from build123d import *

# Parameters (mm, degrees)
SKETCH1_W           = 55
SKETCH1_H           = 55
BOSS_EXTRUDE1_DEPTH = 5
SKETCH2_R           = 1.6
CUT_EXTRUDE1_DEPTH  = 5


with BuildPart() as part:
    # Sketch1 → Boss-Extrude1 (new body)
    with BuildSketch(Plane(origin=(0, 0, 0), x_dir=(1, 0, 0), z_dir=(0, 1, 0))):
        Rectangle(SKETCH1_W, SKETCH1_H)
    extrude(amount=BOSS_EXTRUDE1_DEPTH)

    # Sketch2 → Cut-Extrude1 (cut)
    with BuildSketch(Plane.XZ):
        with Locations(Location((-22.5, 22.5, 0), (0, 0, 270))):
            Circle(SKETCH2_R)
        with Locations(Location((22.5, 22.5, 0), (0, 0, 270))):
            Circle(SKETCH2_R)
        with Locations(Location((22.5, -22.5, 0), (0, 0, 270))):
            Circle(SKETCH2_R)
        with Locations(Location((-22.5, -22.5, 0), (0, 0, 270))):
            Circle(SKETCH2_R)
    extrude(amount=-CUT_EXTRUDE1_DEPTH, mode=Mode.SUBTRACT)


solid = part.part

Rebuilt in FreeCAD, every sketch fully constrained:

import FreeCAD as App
import Part
import Sketcher
from FreeCAD import Vector

doc = App.newDocument("Part")
params = doc.addObject("Spreadsheet::Sheet", "Params")
for row, (alias, value) in enumerate([
    ("sketch1_width", "55 mm"),
    ("pad1_length", "5 mm"),
    ("sketch2_diameter", "3.2 mm"),
    ("pocket1_length", "5 mm"),
], start=1):
    params.set(f"A{row}", alias)
    params.set(f"B{row}", "=" + value)
    params.setAlias(f"B{row}", alias)

body = doc.addObject("PartDesign::Body", "Body")

sketch1 = doc.addObject("Sketcher::SketchObject", "Sketch")
body.addObject(sketch1)
sketch1.AttachmentSupport = (doc.XZ_Plane, [""])
sketch1.MapMode = "FlatFace"
sketch1.addGeometry([
    Part.LineSegment(Vector(-27.5, -27.5, 0), Vector(-27.5, 27.5, 0)),
    Part.LineSegment(Vector(-27.5, 27.5, 0), Vector(27.5, 27.5, 0)),
    Part.LineSegment(Vector(27.5, 27.5, 0), Vector(27.5, -27.5, 0)),
    Part.LineSegment(Vector(27.5, -27.5, 0), Vector(-27.5, -27.5, 0)),
], False)
sketch1.addConstraint([
    Sketcher.Constraint("Coincident", 0, 2, 1, 1),
    Sketcher.Constraint("Coincident", 1, 2, 2, 1),
    Sketcher.Constraint("Coincident", 2, 2, 3, 1),
    Sketcher.Constraint("Coincident", 3, 2, 0, 1),
    Sketcher.Constraint("Vertical", 0),
    Sketcher.Constraint("Horizontal", 1),
    Sketcher.Constraint("Vertical", 2),
    Sketcher.Constraint("Horizontal", 3),
    Sketcher.Constraint("Symmetric", 0, 2, 2, 2, -1, 1),
    Sketcher.Constraint("Equal", 3, 0),
    Sketcher.Constraint("DistanceX", 1, 1, 1, 2, 55.0),
])
sketch1.setExpression("Constraints[10]", "Params.sketch1_width")
pad1 = doc.addObject("PartDesign::Pad", "Pad")
body.addObject(pad1)
pad1.Profile = sketch1
pad1.setExpression("Length", "Params.pad1_length")
pad1.Reversed = True

sketch2 = doc.addObject("Sketcher::SketchObject", "Sketch001")
body.addObject(sketch2)
sketch2.AttachmentSupport = (doc.XZ_Plane, [""])
sketch2.MapMode = "FlatFace"
sketch2.addGeometry([
    Part.Circle(Vector(-22.5, 22.5, 0), Vector(0, 0, 1), 1.6),
    Part.Circle(Vector(22.5, 22.5, 0), Vector(0, 0, 1), 1.6),
    Part.Circle(Vector(22.5, -22.5, 0), Vector(0, 0, 1), 1.6),
    Part.Circle(Vector(-22.5, -22.5, 0), Vector(0, 0, 1), 1.6),
], False)
sketch2.addConstraint([
    Sketcher.Constraint("Equal", 0, 1),
    Sketcher.Constraint("Equal", 1, 2),
    Sketcher.Constraint("Equal", 2, 3),
    Sketcher.Constraint("Symmetric", 0, 3, 2, 3, -1, 1),
    Sketcher.Constraint("Symmetric", 1, 3, 3, 3, -1, 1),
    Sketcher.Constraint("Symmetric", 0, 3, 1, 3, -2),
    Sketcher.Constraint("Diameter", 0, 3.2),
    Sketcher.Constraint("DistanceX", 0, 3, 1, 3, 45.0),
    Sketcher.Constraint("DistanceY", 2, 3, 1, 3, 45.0),
])
sketch2.setExpression("Constraints[6]", "Params.sketch2_diameter")
pocket1 = doc.addObject("PartDesign::Pocket", "Pocket")
body.addObject(pocket1)
pocket1.Profile = sketch2
pocket1.setExpression("Length", "Params.pocket1_length")

doc.recompute()
